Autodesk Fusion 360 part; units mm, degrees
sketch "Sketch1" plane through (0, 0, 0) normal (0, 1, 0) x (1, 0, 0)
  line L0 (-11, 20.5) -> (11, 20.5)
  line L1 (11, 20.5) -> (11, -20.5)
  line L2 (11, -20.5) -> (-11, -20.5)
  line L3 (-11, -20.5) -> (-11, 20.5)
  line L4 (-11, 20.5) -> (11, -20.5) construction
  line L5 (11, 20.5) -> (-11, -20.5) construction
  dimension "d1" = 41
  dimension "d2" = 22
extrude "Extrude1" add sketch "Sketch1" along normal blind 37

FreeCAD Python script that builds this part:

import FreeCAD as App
import Part
import Sketcher


def add_polygon(sketch, points):
    """Adds a closed chain of lines whose ends are joined by coincident constraints."""
    first, n = sketch.GeometryCount, len(points)
    for a, b in zip(points, points[1:] + points[:1]):
        sketch.addGeometry(Part.LineSegment(App.Vector(*a, 0), App.Vector(*b, 0)), False)
    for i in range(n):
        sketch.addConstraint(Sketcher.Constraint("Coincident", first + i, 2, first + (i + 1) % n, 1))

doc = App.newDocument("Part")
body = doc.addObject("PartDesign::Body", "Body")

# Sketch on XZ plane
sketch1 = body.newObject("Sketcher::SketchObject", "Sketch")
sketch1.AttachmentSupport = (doc.getObject("XZ_Plane"), [""])
sketch1.MapMode = "FlatFace"
add_polygon(sketch1, [(11, -20), (-11, -20), (-11, 20), (11, 20)])  # lines 0-3
sketch1.addConstraint([
    Sketcher.Constraint("Horizontal", 0),
    Sketcher.Constraint("Vertical", 1),
    Sketcher.Constraint("Horizontal", 2),
    Sketcher.Constraint("Vertical", 3),
    Sketcher.Constraint("Symmetric", 0, 2, 2, 2, -1, 1),
    Sketcher.Constraint("DistanceX", 0, 2, 0, 1, 22.0),
    Sketcher.Constraint("DistanceY", 1, 1, 1, 2, 41.0),
])
pad1 = body.newObject("PartDesign::Pad", "Pad")
pad1.Profile = sketch1
pad1.Length = 37
pad1.Reversed = True

doc.recompute()
